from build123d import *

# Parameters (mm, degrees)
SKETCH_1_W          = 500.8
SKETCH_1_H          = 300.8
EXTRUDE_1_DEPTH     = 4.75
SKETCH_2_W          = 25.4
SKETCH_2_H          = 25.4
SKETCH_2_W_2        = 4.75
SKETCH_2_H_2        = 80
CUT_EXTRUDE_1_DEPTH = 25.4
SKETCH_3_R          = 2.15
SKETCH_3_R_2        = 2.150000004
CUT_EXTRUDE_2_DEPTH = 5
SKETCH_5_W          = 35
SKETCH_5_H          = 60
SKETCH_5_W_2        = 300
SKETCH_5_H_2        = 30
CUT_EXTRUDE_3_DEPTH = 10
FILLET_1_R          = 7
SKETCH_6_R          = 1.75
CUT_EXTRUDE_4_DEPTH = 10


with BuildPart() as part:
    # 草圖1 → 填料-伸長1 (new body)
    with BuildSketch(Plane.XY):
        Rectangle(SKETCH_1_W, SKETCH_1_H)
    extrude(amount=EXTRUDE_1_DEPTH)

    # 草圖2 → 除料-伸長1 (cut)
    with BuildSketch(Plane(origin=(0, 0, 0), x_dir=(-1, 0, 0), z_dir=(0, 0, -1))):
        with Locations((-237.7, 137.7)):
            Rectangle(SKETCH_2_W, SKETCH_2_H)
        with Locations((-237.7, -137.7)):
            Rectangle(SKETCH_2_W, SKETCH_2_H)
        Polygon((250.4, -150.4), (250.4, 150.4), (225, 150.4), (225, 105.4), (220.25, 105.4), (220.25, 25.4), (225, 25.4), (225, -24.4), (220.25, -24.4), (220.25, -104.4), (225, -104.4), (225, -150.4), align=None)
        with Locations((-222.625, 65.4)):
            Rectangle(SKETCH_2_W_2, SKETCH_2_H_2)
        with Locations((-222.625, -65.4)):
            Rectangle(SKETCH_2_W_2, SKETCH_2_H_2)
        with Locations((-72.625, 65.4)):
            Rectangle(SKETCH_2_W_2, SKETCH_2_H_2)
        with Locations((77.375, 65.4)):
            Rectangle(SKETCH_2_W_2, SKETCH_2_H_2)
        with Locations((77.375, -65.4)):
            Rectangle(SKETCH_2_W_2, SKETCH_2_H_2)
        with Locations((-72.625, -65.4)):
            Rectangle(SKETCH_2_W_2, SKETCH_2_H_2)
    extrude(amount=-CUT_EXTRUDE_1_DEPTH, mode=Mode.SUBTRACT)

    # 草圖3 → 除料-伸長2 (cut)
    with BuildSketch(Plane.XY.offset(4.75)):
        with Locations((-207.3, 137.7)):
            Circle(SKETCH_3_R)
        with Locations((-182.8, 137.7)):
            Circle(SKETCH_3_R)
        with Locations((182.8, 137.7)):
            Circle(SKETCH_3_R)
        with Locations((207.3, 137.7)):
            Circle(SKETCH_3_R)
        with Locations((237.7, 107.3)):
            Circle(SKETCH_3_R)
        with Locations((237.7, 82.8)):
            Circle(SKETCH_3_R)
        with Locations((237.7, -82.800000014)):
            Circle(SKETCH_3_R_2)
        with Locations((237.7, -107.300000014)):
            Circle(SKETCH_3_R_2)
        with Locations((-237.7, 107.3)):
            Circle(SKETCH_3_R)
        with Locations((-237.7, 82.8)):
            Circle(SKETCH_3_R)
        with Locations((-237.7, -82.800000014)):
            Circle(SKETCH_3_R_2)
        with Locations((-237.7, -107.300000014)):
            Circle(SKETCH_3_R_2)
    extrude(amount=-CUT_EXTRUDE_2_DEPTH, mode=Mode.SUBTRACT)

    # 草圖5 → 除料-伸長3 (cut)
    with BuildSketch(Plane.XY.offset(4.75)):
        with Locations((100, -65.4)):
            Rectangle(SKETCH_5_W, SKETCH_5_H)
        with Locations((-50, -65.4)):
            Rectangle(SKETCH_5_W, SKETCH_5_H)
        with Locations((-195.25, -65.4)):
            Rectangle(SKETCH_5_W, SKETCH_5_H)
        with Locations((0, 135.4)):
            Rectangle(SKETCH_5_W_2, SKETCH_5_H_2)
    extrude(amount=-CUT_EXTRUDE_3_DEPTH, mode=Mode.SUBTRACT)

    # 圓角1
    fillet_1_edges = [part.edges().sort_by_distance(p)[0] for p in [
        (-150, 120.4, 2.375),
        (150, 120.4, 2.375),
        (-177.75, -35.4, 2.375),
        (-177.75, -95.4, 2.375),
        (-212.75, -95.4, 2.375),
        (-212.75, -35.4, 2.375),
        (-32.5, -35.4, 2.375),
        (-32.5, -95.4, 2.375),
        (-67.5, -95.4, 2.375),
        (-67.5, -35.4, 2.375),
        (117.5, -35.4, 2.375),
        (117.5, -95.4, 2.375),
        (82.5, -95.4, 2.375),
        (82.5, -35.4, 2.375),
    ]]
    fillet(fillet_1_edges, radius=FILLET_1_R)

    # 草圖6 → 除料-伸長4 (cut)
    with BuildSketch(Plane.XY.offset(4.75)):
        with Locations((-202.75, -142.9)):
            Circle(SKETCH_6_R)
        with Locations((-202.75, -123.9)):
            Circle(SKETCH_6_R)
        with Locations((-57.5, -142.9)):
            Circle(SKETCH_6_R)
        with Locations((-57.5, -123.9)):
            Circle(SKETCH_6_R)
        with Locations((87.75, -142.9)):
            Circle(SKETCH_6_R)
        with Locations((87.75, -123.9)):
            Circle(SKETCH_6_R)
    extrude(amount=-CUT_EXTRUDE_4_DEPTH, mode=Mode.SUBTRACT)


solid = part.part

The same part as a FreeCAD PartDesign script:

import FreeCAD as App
import Part
import Sketcher

V = App.Vector


def edges_at(feature, points):
    """Names of the edges that pass closest to the given points."""
    edges = feature.Shape.Edges
    near = lambda p: min(range(len(edges)), key=lambda i: edges[i].distToShape(Part.Vertex(*p))[0])
    return sorted({f"Edge{near(p) + 1}" for p in points})


def add_polygon(sketch, points):
    """Adds a closed chain of lines whose ends are joined by coincident constraints."""
    first, n = sketch.GeometryCount, len(points)
    for a, b in zip(points, points[1:] + points[:1]):
        sketch.addGeometry(Part.LineSegment(App.Vector(*a, 0), App.Vector(*b, 0)), False)
    for i in range(n):
        sketch.addConstraint(Sketcher.Constraint("Coincident", first + i, 2, first + (i + 1) % n, 1))

doc = App.newDocument("Part")
params = doc.addObject("Spreadsheet::Sheet", "Params")
for row, (alias, value) in enumerate([
    ("sketch1_width", "500.8 mm"),
    ("sketch1_height", "300.8 mm"),
    ("pad1_length", "4.75 mm"),
    ("sketch2_height", "45 mm"),
    ("sketch2_height2", "80 mm"),
    ("sketch2_height3", "46 mm"),
    ("sketch2_width", "25.4 mm"),
    ("sketch2_height4", "300.8 mm"),
    ("pocket1_length", "25.4 mm"),
    ("sketch3_diameter", "4.3 mm"),
    ("pocket2_length", "5 mm"),
    ("sketch4_width", "35 mm"),
    ("sketch4_width2", "300 mm"),
    ("sketch4_height", "60 mm"),
    ("sketch4_height2", "30 mm"),
    ("pocket3_length", "10 mm"),
    ("fillet_radius", "7 mm"),
    ("sketch5_diameter", "3.5 mm"),
    ("pocket4_length", "10 mm"),
], start=1):
    params.set(f"A{row}", alias)
    params.set(f"B{row}", "=" + value)
    params.setAlias(f"B{row}", alias)

body = doc.addObject("PartDesign::Body", "Body")

# Sketch on XY plane
sketch1 = body.newObject("Sketcher::SketchObject", "Sketch")
sketch1.AttachmentSupport = (doc.getObject("XY_Plane"), [""])
sketch1.MapMode = "FlatFace"
add_polygon(sketch1, [(-250, 150), (-250, -150), (250, -150), (250, 150)])  # lines 0-3
sketch1.addConstraint([
    Sketcher.Constraint("Vertical", 0),
    Sketcher.Constraint("Horizontal", 1),
    Sketcher.Constraint("Vertical", 2),
    Sketcher.Constraint("Horizontal", 3),
    Sketcher.Constraint("Symmetric", 0, 2, 2, 2, -1, 1),
    Sketcher.Constraint("DistanceX", 1, 1, 1, 2, 500.8),
    Sketcher.Constraint("DistanceY", 0, 2, 0, 1, 300.8),
])
sketch1.setExpression("Constraints[9]", "Params.sketch1_width")
sketch1.setExpression("Constraints[10]", "Params.sketch1_height")
pad1 = body.newObject("PartDesign::Pad", "Pad")
pad1.Profile = sketch1
pad1.setExpression("Length", "Params.pad1_length")

# Sketch on XY plane
sketch2 = body.newObject("Sketcher::SketchObject", "Sketch001")
sketch2.AttachmentSupport = (doc.getObject("XY_Plane"), [""])
sketch2.MapMode = "FlatFace"
add_polygon(sketch2, [(250.4, 150.4), (250.4, 125), (225, 125), (225, 150.4)])  # lines 0-3
add_polygon(sketch2, [(250.4, -125), (250.4, -150.4), (225, -150.4), (225, -125)])  # lines 4-7
add_polygon(sketch2, [(-250.4, -150.4), (-250.4, 150.4), (-225, 150.4), (-225, 105.4), (-220.2, 105.4), (-220.2, 25.4), (-225, 25.4), (-225, -24.4), (-220.2, -24.4), (-220.2, -104.4), (-225, -104.4), (-225, -150.4)])  # lines 8-19
add_polygon(sketch2, [(225, 105.4), (225, 25.4), (220.2, 25.4), (220.2, 105.4)])  # lines 20-23
add_polygon(sketch2, [(225, -25.4), (225, -105.4), (220.2, -105.4), (220.2, -25.4)])  # lines 24-27
add_polygon(sketch2, [(75, 105.4), (75, 25.4), (70.2, 25.4), (70.2, 105.4)])  # lines 28-31
add_polygon(sketch2, [(-75, 105.4), (-75, 25.4), (-79.8, 25.4), (-79.8, 105.4)])  # lines 32-35
add_polygon(sketch2, [(-75, -25.4), (-75, -105.4), (-79.8, -105.4), (-79.8, -25.4)])  # lines 36-39
add_polygon(sketch2, [(75, -25.4), (75, -105.4), (70.2, -105.4), (70.2, -25.4)])  # lines 40-43
sketch2.addConstraint([
    Sketcher.Constraint("Vertical", 0),
    Sketcher.Constraint("Horizontal", 1),
    Sketcher.Constraint("Vertical", 2),
    Sketcher.Constraint("Horizontal", 3),
    Sketcher.Constraint("Vertical", 4),
    Sketcher.Constraint("Horizontal", 5),
    Sketcher.Constraint("Vertical", 6),
    Sketcher.Constraint("Horizontal", 7),
    Sketcher.Constraint("Vertical", 8),
    Sketcher.Constraint("Horizontal", 9),
    Sketcher.Constraint("Vertical", 10),
    Sketcher.Constraint("Horizontal", 11),
    Sketcher.Constraint("Vertical", 12),
    Sketcher.Constraint("Horizontal", 13),
    Sketcher.Constraint("Vertical", 14),
    Sketcher.Constraint("Horizontal", 15),
    Sketcher.Constraint("Vertical", 16),
    Sketcher.Constraint("Horizontal", 17),
    Sketcher.Constraint("Vertical", 18),
    Sketcher.Constraint("Horizontal", 19),
    Sketcher.Constraint("Vertical", 20),
    Sketcher.Constraint("Horizontal", 21),
    Sketcher.Constraint("Vertical", 22),
    Sketcher.Constraint("Horizontal", 23),
    Sketcher.Constraint("Vertical", 24),
    Sketcher.Constraint("Horizontal", 25),
    Sketcher.Constraint("Vertical", 26),
    Sketcher.Constraint("Horizontal", 27),
    Sketcher.Constraint("Vertical", 28),
    Sketcher.Constraint("Horizontal", 29),
    Sketcher.Constraint("Vertical", 30),
    Sketcher.Constraint("Horizontal", 31),
    Sketcher.Constraint("Vertical", 32),
    Sketcher.Constraint("Horizontal", 33),
    Sketcher.Constraint("Vertical", 34),
    Sketcher.Constraint("Horizontal", 35),
    Sketcher.Constraint("Vertical", 36),
    Sketcher.Constraint("Horizontal", 37),
    Sketcher.Constraint("Vertical", 38),
    Sketcher.Constraint("Horizontal", 39),
    Sketcher.Constraint("Vertical", 40),
    Sketcher.Constraint("Horizontal", 41),
    Sketcher.Constraint("Vertical", 42),
    Sketcher.Constraint("Horizontal", 43),
    Sketcher.Constraint("Symmetric", 4, 2, 8, 2, -1, 1),
    Sketcher.Constraint("Symmetric", 2, 2, 18, 2, -1, 1),
    Sketcher.Constraint("Symmetric", 10, 2, 24, 2, -1, 1),
    Sketcher.Constraint("Symmetric", 12, 2, 26, 2, -1, 1),
    Sketcher.Constraint("Symmetric", 31, 2, 36, 2, -1, 1),
    Sketcher.Constraint("Symmetric", 35, 2, 40, 2, -1, 1),
    Sketcher.Constraint("Symmetric", 3, 2, 8, 2, -2),
    Sketcher.Constraint("Symmetric", 13, 2, 20, 2, -2),
    Sketcher.Constraint("Symmetric", 11, 2, 22, 2, -2),
    Sketcher.Constraint("Symmetric", 28, 2, 32, 2, -2),
    Sketcher.Constraint("Symmetric", 1, 2, 6, 2, -1),
    Sketcher.Constraint("Symmetric", 34, 2, 37, 2, -1),
    Sketcher.Constraint("Symmetric", 29, 2, 42, 2, -1),
    Sketcher.Constraint("Horizontal", 21, 2, 28, 2),
    Sketcher.Constraint("Horizontal", 23, 2, 30, 2),
    Sketcher.Constraint("Horizontal", 27, 2, 38, 2),
    Sketcher.Constraint("Vertical", 10, 2, 13, 2),
    Sketcher.Constraint("Vertical", 12, 2, 15, 2),
    Sketcher.Constraint("Vertical", 14, 2, 17, 2),
    Sketcher.Constraint("Equal", 27, 29),
    Sketcher.Constraint("Equal", 31, 33),
    Sketcher.Constraint("Equal", 19, 0),
    Sketcher.Constraint("Equal", 12, 16),
    Sketcher.Constraint("DistanceY", 10, 2, 10, 1, 45.0),
    Sketcher.Constraint("DistanceY", 12, 2, 12, 1, 80.0),
    Sketcher.Constraint("DistanceY", 18, 2, 18, 1, 46.0),
    Sketcher.Constraint("DistanceX", 1, 2, 1, 1, 25.4),
    Sketcher.Constraint("DistanceY", 8, 1, 8, 2, 300.8),
    Sketcher.Constraint("DistanceX", -1, 1, 1, 2, 225.0),
    Sketcher.Constraint("DistanceX", -1, 1, 28, 2, 75.0),
    Sketcher.Constraint("DistanceX", 11, 1, 11, 2, 4.75),
])
sketch2.setExpression("Constraints[111]", "Params.sketch2_height")
sketch2.setExpression("Constraints[112]", "Params.sketch2_height2")
sketch2.setExpression("Constraints[113]", "Params.sketch2_height3")
sketch2.setExpression("Constraints[114]", "Params.sketch2_width")
sketch2.setExpression("Constraints[115]", "Params.sketch2_height4")
pocket1 = body.newObject("PartDesign::Pocket", "Pocket")
pocket1.Profile = sketch2
pocket1.setExpression("Length", "Params.pocket1_length")
pocket1.Reversed = True

# Sketch on XY plane
sketch3 = body.newObject("Sketcher::SketchObject", "Sketch002")
sketch3.AttachmentSupport = (doc.getObject("XY_Plane"), [""])
sketch3.MapMode = "FlatFace"
sketch3.AttachmentOffset = App.Placement(V(0, 0, 4.75), App.Rotation())
sketch3.addGeometry([
    Part.Circle(V(-207.3, 137.7, 0), V(0, 0, 1), 2.1),  # 0
    Part.Circle(V(-182.8, 137.7, 0), V(0, 0, 1), 2.1),  # 1
    Part.Circle(V(182.8, 137.7, 0), V(0, 0, 1), 2.1),  # 2
    Part.Circle(V(207.3, 137.7, 0), V(0, 0, 1), 2.1),  # 3
    Part.Circle(V(237.7, 107.3, 0), V(0, 0, 1), 2.1),  # 4
    Part.Circle(V(237.7, 82.8, 0), V(0, 0, 1), 2.1),  # 5
    Part.Circle(V(237.7, -82.8, 0), V(0, 0, 1), 2.2),  # 6
    Part.Circle(V(237.7, -107.3, 0), V(0, 0, 1), 2.2),  # 7
    Part.Circle(V(-237.7, 107.3, 0), V(0, 0, 1), 2.1),  # 8
    Part.Circle(V(-237.7, 82.8, 0), V(0, 0, 1), 2.1),  # 9
    Part.Circle(V(-237.7, -82.8, 0), V(0, 0, 1), 2.2),  # 10
    Part.Circle(V(-237.7, -107.3, 0), V(0, 0, 1), 2.2),  # 11
], False)
sketch3.addConstraint([
    Sketcher.Constraint("Equal", 0, 1),
    Sketcher.Constraint("Equal", 1, 2),
    Sketcher.Constraint("Equal", 2, 3),
    Sketcher.Constraint("Equal", 3, 4),
    Sketcher.Constraint("Equal", 4, 5),
    Sketcher.Constraint("Equal", 5, 6),
    Sketcher.Constraint("Equal", 6, 7),
    Sketcher.Constraint("Equal", 7, 8),
    Sketcher.Constraint("Equal", 8, 9),
    Sketcher.Constraint("Equal", 9, 10),
    Sketcher.Constraint("Equal", 10, 11),
    Sketcher.Constraint("Symmetric", 7, 3, 8, 3, -1, 1),
    Sketcher.Constraint("Symmetric", 6, 3, 9, 3, -1, 1),
    Sketcher.Constraint("Symmetric", 5, 3, 10, 3, -1, 1),
    Sketcher.Constraint("Symmetric", 4, 3, 11, 3, -1, 1),
    Sketcher.Constraint("Symmetric", 1, 3, 2, 3, -2),
    Sketcher.Constraint("Symmetric", 0, 3, 3, 3, -2),
    Sketcher.Constraint("Symmetric", 4, 3, 8, 3, -2),
    Sketcher.Constraint("Symmetric", 5, 3, 9, 3, -2),
    Sketcher.Constraint("Horizontal", 0, 3, 1, 3),
    Sketcher.Constraint("Vertical", 4, 3, 5, 3),
    Sketcher.Constraint("Diameter", 0, 4.3),
    Sketcher.Constraint("DistanceX", 0, 3, 4, 3, 445.0),
    Sketcher.Constraint("DistanceY", 7, 3, 3, 3, 245.0),
    Sketcher.Constraint("DistanceX", 0, 3, -1, 1, 207.3),
    Sketcher.Constraint("DistanceY", -1, 1, 0, 3, 137.7),
    Sketcher.Constraint("DistanceX", 1, 3, -1, 1, 182.8),
    Sketcher.Constraint("DistanceY", -1, 1, 5, 3, 82.8),
])
sketch3.setExpression("Constraints[21]", "Params.sketch3_diameter")
pocket2 = body.newObject("PartDesign::Pocket", "Pocket001")
pocket2.Profile = sketch3
pocket2.setExpression("Length", "Params.pocket2_length")

# Sketch on XY plane
sketch4 = body.newObject("Sketcher::SketchObject", "Sketch003")
sketch4.AttachmentSupport = (doc.getObject("XY_Plane"), [""])
sketch4.MapMode = "FlatFace"
sketch4.AttachmentOffset = App.Placement(V(0, 0, 4.75), App.Rotation())
add_polygon(sketch4, [(82, -35), (82, -95), (118, -95), (118, -35)])  # lines 0-3
add_polygon(sketch4, [(-68, -35), (-68, -95), (-32, -95), (-32, -35)])  # lines 4-7
add_polygon(sketch4, [(-213, -35), (-213, -95), (-178, -95), (-178, -35)])  # lines 8-11
add_polygon(sketch4, [(-150, 150), (-150, 120), (150, 120), (150, 150)])  # lines 12-15
sketch4.addConstraint([
    Sketcher.Constraint("Vertical", 0),
    Sketcher.Constraint("Horizontal", 1),
    Sketcher.Constraint("Vertical", 2),
    Sketcher.Constraint("Horizontal", 3),
    Sketcher.Constraint("Vertical", 4),
    Sketcher.Constraint("Horizontal", 5),
    Sketcher.Constraint("Vertical", 6),
    Sketcher.Constraint("Horizontal", 7),
    Sketcher.Constraint("Vertical", 8),
    Sketcher.Constraint("Horizontal", 9),
    Sketcher.Constraint("Vertical", 10),
    Sketcher.Constraint("Horizontal", 11),
    Sketcher.Constraint("Vertical", 12),
    Sketcher.Constraint("Horizontal", 13),
    Sketcher.Constraint("Vertical", 14),
    Sketcher.Constraint("Horizontal", 15),
    Sketcher.Constraint("Horizontal", 1, 2, 4, 2),
    Sketcher.Constraint("Horizontal", 3, 2, 6, 2),
    Sketcher.Constraint("Horizontal", 5, 2, 8, 2),
    Sketcher.Constraint("Horizontal", 7, 2, 10, 2),
    Sketcher.Constraint("Equal", 3, 5),
    Sketcher.Constraint("Equal", 7, 9),
    Sketcher.Constraint("DistanceX", 1, 1, 1, 2, 35.0),
    Sketcher.Constraint("DistanceX", 13, 1, 13, 2, 300.0),
    Sketcher.Constraint("DistanceY", 0, 2, 0, 1, 60.0),
    Sketcher.Constraint("DistanceY", 12, 2, 12, 1, 30.0),
    Sketcher.Constraint("DistanceX", 12, 2, -1, 1, 150.0),
    Sketcher.Constraint("DistanceX", 4, 2, 0, 2, 150.0),
    Sketcher.Constraint("DistanceX", -1, 1, 0, 2, 82.5),
    Sketcher.Constraint("DistanceY", 0, 2, -1, 1, 95.4),
    Sketcher.Constraint("DistanceY", -1, 1, 12, 2, 120.4),
    Sketcher.Constraint("DistanceX", 8, 2, -1, 1, 212.75),
])
sketch4.setExpression("Constraints[38]", "Params.sketch4_width")
sketch4.setExpression("Constraints[39]", "Params.sketch4_width2")
sketch4.setExpression("Constraints[40]", "Params.sketch4_height")
sketch4.setExpression("Constraints[41]", "Params.sketch4_height2")
pocket3 = body.newObject("PartDesign::Pocket", "Pocket002")
pocket3.Profile = sketch4
pocket3.setExpression("Length", "Params.pocket3_length")
doc.recompute()

fillet = body.newObject("PartDesign::Fillet", "Fillet")
fillet.Base = (pocket3, edges_at(pocket3, [
    (-150, 120.4, 2.375),
    (150, 120.4, 2.375),
    (-177.75, -35.4, 2.375),
    (-177.75, -95.4, 2.375),
    (-212.75, -95.4, 2.375),
    (-212.75, -35.4, 2.375),
    (-32.5, -35.4, 2.375),
    (-32.5, -95.4, 2.375),
    (-67.5, -95.4, 2.375),
    (-67.5, -35.4, 2.375),
    (117.5, -35.4, 2.375),
    (117.5, -95.4, 2.375),
    (82.5, -95.4, 2.375),
    (82.5, -35.4, 2.375),
]))
fillet.setExpression("Radius", "Params.fillet_radius")

# Sketch on XY plane
sketch5 = body.newObject("Sketcher::SketchObject", "Sketch004")
sketch5.AttachmentSupport = (doc.getObject("XY_Plane"), [""])
sketch5.MapMode = "FlatFace"
sketch5.AttachmentOffset = App.Placement(V(0, 0, 4.75), App.Rotation())
sketch5.addGeometry([
    Part.Circle(V(-202.8, -142.9, 0), V(0, 0, 1), 1.8),  # 0
    Part.Circle(V(-202.8, -123.9, 0), V(0, 0, 1), 1.8),  # 1
    Part.Circle(V(-57.5, -142.9, 0), V(0, 0, 1), 1.8),  # 2
    Part.Circle(V(-57.5, -123.9, 0), V(0, 0, 1), 1.8),  # 3
    Part.Circle(V(87.8, -142.9, 0), V(0, 0, 1), 1.8),  # 4
    Part.Circle(V(87.8, -123.9, 0), V(0, 0, 1), 1.8),  # 5
], False)
sketch5.addConstraint([
    Sketcher.Constraint("Equal", 0, 1),
    Sketcher.Constraint("Equal", 1, 2),
    Sketcher.Constraint("Equal", 2, 3),
    Sketcher.Constraint("Equal", 3, 4),
    Sketcher.Constraint("Equal", 4, 5),
    Sketcher.Constraint("Horizontal", 0, 3, 2, 3),
    Sketcher.Constraint("Horizontal", 1, 3, 3, 3),
    Sketcher.Constraint("Horizontal", 2, 3, 4, 3),
    Sketcher.Constraint("Horizontal", 3, 3, 5, 3),
    Sketcher.Constraint("Vertical", 0, 3, 1, 3),
    Sketcher.Constraint("Vertical", 2, 3, 3, 3),
    Sketcher.Constraint("Vertical", 4, 3, 5, 3),
    Sketcher.Constraint("Diameter", 0, 3.5),
    Sketcher.Constraint("DistanceY", 0, 3, 1, 3, 19.0),
    Sketcher.Constraint("DistanceY", 0, 3, -1, 1, 142.9),
    Sketcher.Constraint("DistanceX", 2, 3, -1, 1, 57.5),
    Sketcher.Constraint("DistanceX", 0, 3, 4, 3, 290.5),
    Sketcher.Constraint("DistanceX", 0, 3, -1, 1, 202.75),
])
sketch5.setExpression("Constraints[12]", "Params.sketch5_diameter")
pocket4 = body.newObject("PartDesign::Pocket", "Pocket003")
pocket4.Profile = sketch5
pocket4.setExpression("Length", "Params.pocket4_length")

doc.recompute()
